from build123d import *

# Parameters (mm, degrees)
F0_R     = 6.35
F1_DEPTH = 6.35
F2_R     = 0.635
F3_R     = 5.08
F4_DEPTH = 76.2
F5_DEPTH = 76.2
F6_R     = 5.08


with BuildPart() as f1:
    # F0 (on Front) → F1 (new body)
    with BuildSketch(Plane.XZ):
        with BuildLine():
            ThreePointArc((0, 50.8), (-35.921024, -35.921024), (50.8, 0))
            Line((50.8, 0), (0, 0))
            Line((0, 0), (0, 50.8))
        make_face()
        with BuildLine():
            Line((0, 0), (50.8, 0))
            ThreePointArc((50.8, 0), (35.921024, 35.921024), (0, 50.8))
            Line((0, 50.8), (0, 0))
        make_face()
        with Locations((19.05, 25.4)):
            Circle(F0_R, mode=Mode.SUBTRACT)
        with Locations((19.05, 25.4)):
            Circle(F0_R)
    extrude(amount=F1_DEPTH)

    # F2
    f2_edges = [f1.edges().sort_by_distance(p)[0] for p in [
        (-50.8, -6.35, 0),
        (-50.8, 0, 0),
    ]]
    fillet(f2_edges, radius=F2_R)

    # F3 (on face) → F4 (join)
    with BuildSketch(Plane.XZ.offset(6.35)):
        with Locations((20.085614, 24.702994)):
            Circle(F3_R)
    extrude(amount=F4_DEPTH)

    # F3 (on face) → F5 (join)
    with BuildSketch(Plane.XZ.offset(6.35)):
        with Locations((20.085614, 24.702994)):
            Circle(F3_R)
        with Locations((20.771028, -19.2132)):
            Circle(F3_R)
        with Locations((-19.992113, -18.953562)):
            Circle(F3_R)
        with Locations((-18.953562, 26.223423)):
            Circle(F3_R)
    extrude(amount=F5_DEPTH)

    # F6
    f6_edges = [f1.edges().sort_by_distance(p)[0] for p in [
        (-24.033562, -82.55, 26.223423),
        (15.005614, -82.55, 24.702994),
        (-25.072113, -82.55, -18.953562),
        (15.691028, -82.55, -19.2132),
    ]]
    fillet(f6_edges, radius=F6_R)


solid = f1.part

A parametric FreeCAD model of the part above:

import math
import FreeCAD as App
import Part
import Sketcher

V = App.Vector
Q = App.Units.Quantity


def edges_at(feature, points):
    """Names of the edges that pass closest to the given points."""
    edges = feature.Shape.Edges
    near = lambda p: min(range(len(edges)), key=lambda i: edges[i].distToShape(Part.Vertex(*p))[0])
    return sorted({f"Edge{near(p) + 1}" for p in points})

doc = App.newDocument("Part")
body = doc.addObject("PartDesign::Body", "Body")

sketch1 = doc.addObject("Sketcher::SketchObject", "Sketch")
body.addObject(sketch1)
sketch1.AttachmentSupport = (doc.XZ_Plane, [""])
sketch1.MapMode = "FlatFace"
sketch1.addGeometry(Part.ArcOfCircle(Part.Circle(V(0, 0, 0), V(0, 0, 1), 51), math.radians(90), math.radians(360)), False)
sketch1.addGeometry(Part.ArcOfCircle(Part.Circle(V(0, 0, 0), V(0, 0, 1), 51), math.radians(0), math.radians(90)), False)
sketch1.addConstraint(Sketcher.Constraint("Tangent", 0, 1, 1, 2))
sketch1.addConstraint(Sketcher.Constraint("Coincident", 1, 1, 0, 2))
sketch1.addConstraint(Sketcher.Constraint("Coincident", 0, 3, -1, 1))
sketch1.addConstraint(Sketcher.Constraint("PointOnObject", 0, 1, -2))
sketch1.addConstraint(Sketcher.Constraint("PointOnObject", 1, 1, -1))
sketch1.addConstraint(Sketcher.Constraint("Radius", 0, Q("2 in")))
pad1 = doc.addObject("PartDesign::Pad", "Pad")
body.addObject(pad1)
pad1.Profile = sketch1
pad1.Length = Q("0.25 in")
doc.recompute()

fillet = doc.addObject("PartDesign::Fillet", "Fillet")
body.addObject(fillet)
fillet.Base = (pad1, edges_at(pad1, [(-35.921, -6.35, -35.921), (-35.921, 0, -35.921)]))
fillet.Radius = Q("0.025 in")

sketch2 = doc.addObject("Sketcher::SketchObject", "Sketch001")
body.addObject(sketch2)
sketch2.AttachmentSupport = (doc.XZ_Plane, [""])
sketch2.MapMode = "FlatFace"
sketch2.AttachmentOffset = App.Placement(V(0, 0, 0.25 * 25.4), App.Rotation())
sketch2.addGeometry(Part.Circle(V(20, 25, 0), V(0, 0, 1), 5), False)
sketch2.addConstraint(Sketcher.Constraint("Diameter", 0, Q("0.4 in")))
sketch2.addConstraint(Sketcher.Constraint("DistanceX", -1, 1, 0, 3, Q("20.085614 mm")))
sketch2.addConstraint(Sketcher.Constraint("DistanceY", -1, 1, 0, 3, Q("24.702994 mm")))
pad2 = doc.addObject("PartDesign::Pad", "Pad001")
body.addObject(pad2)
pad2.Profile = sketch2
pad2.Length = Q("3 in")

sketch3 = doc.addObject("Sketcher::SketchObject", "Sketch002")
body.addObject(sketch3)
sketch3.AttachmentSupport = (doc.XZ_Plane, [""])
sketch3.MapMode = "FlatFace"
sketch3.AttachmentOffset = App.Placement(V(0, 0, 0.25 * 25.4), App.Rotation())
sketch3.addGeometry(Part.Circle(V(20, 25, 0), V(0, 0, 1), 5), False)
sketch3.addGeometry(Part.Circle(V(21, -19, 0), V(0, 0, 1), 5), False)
sketch3.addGeometry(Part.Circle(V(-20, -19, 0), V(0, 0, 1), 5), False)
sketch3.addGeometry(Part.Circle(V(-19, 26, 0), V(0, 0, 1), 5), False)
sketch3.addConstraint(Sketcher.Constraint("Equal", 0, 1))
sketch3.addConstraint(Sketcher.Constraint("Equal", 1, 2))
sketch3.addConstraint(Sketcher.Constraint("Equal", 2, 3))
sketch3.addConstraint(Sketcher.Constraint("Diameter", 0, Q("0.4 in")))
sketch3.addConstraint(Sketcher.Constraint("DistanceY", 1, 3, -1, 1, Q("19.2132 mm")))
sketch3.addConstraint(Sketcher.Constraint("DistanceX", -1, 1, 1, 3, Q("20.771028 mm")))
sketch3.addConstraint(Sketcher.Constraint("DistanceX", 2, 3, 1, 3, Q("40.763141 mm")))
sketch3.addConstraint(Sketcher.Constraint("DistanceY", 0, 3, 3, 3, Q("1.520429 mm")))
sketch3.addConstraint(Sketcher.Constraint("DistanceX", 2, 3, 3, 3, Q("1.038551 mm")))
sketch3.addConstraint(Sketcher.Constraint("DistanceX", -1, 1, 0, 3, Q("20.085614 mm")))
sketch3.addConstraint(Sketcher.Constraint("DistanceY", -1, 1, 0, 3, Q("24.702994 mm")))
sketch3.addConstraint(Sketcher.Constraint("DistanceY", 2, 3, -1, 1, Q("18.953562 mm")))
pad3 = doc.addObject("PartDesign::Pad", "Pad002")
body.addObject(pad3)
pad3.Profile = sketch3
pad3.Length = Q("3 in")
doc.recompute()

fillet2 = doc.addObject("PartDesign::Fillet", "Fillet001")
body.addObject(fillet2)
fillet2.Base = (pad3, edges_at(pad3, [
    (-24.034, -82.55, 26.223),
    (15.006, -82.55, 24.703),
    (-25.072, -82.55, -18.954),
    (15.691, -82.55, -19.213),
]))
fillet2.Radius = Q("0.2 in")

doc.recompute()
